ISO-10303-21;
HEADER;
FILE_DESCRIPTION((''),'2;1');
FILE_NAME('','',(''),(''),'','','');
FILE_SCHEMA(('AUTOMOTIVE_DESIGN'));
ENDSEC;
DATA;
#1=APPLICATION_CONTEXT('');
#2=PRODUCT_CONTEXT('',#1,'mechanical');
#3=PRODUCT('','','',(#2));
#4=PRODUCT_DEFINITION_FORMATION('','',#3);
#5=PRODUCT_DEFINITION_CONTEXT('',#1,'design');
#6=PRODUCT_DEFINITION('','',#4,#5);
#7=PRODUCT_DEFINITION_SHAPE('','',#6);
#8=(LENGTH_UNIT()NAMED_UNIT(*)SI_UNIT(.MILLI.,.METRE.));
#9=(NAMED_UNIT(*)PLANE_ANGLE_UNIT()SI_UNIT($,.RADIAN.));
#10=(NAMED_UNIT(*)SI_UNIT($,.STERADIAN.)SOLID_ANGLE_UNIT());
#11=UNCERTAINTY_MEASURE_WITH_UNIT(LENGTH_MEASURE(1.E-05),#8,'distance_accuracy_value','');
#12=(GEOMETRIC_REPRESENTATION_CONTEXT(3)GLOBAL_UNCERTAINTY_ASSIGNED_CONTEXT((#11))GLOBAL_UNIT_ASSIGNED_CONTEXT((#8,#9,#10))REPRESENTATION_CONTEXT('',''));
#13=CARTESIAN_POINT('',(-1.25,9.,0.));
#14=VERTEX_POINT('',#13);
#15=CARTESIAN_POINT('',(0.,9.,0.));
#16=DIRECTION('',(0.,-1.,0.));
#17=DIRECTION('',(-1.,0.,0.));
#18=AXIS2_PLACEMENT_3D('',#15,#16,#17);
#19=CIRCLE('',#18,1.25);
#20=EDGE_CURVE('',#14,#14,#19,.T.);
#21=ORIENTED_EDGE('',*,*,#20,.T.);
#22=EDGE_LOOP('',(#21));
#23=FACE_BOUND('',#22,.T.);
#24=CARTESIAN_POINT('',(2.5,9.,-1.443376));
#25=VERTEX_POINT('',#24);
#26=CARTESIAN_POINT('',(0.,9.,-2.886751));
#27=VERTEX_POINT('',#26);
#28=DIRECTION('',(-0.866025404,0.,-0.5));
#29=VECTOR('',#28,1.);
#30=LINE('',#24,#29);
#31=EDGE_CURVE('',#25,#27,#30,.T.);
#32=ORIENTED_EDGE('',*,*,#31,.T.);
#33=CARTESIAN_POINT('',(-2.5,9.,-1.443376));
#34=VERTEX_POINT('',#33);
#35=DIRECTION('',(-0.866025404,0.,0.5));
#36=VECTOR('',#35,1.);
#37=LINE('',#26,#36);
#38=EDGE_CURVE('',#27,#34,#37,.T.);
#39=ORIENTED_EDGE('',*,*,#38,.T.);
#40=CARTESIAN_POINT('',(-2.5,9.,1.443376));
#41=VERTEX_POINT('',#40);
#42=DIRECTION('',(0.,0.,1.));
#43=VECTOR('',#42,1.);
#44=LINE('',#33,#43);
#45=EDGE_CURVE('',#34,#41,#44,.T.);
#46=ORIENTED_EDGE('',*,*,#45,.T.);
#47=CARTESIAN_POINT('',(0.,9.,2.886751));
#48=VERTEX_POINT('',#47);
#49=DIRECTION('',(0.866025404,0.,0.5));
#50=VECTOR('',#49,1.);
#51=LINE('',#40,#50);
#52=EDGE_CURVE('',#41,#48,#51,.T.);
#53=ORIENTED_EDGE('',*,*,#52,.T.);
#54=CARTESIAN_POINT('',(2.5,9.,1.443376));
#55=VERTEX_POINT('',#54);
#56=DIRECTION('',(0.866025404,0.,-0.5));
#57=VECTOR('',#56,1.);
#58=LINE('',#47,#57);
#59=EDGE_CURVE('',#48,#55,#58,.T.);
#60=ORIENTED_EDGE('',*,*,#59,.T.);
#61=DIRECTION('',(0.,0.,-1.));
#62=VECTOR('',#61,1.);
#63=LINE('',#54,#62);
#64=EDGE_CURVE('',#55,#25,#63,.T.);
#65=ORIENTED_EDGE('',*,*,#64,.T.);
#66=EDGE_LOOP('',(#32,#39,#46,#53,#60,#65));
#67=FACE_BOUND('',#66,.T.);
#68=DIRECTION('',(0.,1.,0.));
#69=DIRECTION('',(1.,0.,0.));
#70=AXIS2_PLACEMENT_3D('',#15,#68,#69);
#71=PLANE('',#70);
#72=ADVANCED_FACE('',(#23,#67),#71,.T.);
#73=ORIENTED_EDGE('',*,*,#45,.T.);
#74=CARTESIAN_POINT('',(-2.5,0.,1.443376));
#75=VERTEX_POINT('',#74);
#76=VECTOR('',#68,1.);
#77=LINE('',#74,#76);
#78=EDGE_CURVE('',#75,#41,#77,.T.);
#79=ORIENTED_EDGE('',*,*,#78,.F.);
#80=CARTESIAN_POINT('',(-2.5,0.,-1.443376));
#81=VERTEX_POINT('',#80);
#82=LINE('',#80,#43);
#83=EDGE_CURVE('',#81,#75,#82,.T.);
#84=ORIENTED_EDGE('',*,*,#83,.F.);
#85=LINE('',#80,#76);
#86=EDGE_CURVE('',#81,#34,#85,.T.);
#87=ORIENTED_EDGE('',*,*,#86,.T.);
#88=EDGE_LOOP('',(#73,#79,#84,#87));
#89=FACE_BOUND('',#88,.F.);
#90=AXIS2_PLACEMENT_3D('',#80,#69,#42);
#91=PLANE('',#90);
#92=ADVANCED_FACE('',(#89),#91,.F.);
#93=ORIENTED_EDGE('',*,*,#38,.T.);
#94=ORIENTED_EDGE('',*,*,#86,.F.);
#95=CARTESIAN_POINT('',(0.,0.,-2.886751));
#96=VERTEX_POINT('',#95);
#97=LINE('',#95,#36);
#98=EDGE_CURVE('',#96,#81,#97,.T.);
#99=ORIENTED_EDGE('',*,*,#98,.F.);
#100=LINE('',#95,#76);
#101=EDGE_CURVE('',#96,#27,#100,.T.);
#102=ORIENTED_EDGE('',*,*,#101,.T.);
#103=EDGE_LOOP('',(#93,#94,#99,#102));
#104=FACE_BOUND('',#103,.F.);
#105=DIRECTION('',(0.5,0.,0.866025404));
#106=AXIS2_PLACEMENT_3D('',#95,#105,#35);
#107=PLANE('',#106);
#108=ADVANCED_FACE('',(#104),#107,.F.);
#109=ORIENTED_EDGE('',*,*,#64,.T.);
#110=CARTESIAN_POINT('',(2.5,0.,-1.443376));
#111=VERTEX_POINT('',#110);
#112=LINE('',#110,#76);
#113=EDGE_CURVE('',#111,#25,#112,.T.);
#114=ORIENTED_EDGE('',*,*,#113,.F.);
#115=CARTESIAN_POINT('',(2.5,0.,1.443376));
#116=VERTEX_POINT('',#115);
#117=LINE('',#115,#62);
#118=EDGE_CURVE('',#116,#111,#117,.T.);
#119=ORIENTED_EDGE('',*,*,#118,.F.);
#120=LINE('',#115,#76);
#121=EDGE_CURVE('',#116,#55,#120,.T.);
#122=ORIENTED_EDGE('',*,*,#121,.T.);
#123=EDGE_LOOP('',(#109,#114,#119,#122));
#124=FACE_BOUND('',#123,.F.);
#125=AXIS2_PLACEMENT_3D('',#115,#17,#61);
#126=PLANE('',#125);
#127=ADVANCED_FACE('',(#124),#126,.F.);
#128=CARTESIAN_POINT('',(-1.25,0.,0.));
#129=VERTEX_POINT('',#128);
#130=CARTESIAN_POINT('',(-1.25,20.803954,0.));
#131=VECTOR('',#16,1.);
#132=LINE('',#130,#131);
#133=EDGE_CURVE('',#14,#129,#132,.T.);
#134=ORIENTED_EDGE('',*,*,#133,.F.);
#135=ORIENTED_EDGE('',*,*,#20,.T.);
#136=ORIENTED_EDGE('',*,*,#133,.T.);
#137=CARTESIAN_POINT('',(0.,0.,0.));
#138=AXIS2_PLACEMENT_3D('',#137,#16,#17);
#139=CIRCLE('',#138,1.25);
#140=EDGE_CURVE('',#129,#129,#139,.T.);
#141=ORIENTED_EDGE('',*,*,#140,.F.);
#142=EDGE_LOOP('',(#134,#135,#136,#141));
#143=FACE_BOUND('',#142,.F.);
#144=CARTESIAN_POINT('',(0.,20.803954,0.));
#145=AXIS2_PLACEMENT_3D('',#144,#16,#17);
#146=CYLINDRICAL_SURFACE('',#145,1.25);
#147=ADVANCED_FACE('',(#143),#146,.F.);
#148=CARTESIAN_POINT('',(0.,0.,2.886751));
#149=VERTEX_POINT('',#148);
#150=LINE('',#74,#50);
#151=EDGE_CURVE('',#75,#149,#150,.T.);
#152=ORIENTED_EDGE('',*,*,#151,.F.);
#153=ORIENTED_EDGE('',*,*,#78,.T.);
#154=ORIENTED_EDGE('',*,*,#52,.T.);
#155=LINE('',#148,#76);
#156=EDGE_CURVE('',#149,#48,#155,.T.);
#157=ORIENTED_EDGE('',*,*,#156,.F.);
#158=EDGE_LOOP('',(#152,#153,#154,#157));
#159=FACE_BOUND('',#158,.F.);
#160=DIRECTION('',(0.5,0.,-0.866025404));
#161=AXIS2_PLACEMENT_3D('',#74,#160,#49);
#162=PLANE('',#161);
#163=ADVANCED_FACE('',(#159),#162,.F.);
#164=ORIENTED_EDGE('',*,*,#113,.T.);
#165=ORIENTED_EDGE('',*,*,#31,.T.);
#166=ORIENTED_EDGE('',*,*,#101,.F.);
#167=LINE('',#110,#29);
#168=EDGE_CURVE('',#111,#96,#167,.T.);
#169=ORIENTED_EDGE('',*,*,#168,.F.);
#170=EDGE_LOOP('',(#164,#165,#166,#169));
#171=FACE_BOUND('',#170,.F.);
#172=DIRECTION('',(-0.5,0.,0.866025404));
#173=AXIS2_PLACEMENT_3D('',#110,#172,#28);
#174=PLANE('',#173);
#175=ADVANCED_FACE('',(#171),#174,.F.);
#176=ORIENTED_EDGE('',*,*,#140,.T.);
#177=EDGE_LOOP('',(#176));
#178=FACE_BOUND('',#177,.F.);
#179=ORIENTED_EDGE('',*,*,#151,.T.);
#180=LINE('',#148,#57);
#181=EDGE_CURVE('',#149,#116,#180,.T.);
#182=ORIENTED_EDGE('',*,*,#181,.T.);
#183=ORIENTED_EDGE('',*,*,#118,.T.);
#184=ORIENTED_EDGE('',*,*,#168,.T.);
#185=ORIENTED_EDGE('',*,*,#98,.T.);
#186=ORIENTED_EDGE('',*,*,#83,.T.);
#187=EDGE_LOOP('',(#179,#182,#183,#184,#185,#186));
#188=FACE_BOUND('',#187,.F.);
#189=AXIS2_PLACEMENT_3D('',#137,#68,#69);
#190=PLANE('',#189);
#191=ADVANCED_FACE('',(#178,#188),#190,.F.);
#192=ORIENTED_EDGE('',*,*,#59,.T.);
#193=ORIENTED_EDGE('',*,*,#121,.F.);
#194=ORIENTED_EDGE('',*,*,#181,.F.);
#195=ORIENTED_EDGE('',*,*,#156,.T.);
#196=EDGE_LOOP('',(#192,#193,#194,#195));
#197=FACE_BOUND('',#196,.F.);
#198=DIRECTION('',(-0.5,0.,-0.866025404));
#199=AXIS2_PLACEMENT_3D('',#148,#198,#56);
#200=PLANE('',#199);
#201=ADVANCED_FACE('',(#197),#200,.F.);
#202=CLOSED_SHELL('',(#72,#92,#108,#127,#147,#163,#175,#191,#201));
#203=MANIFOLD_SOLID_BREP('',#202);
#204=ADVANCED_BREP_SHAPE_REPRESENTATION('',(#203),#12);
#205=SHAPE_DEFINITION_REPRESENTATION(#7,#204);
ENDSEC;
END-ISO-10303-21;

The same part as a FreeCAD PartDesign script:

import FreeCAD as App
import Part
import Sketcher
from FreeCAD import Vector
Q = App.Units.Quantity

doc = App.newDocument("Part")
body = doc.addObject("PartDesign::Body", "Body")

# Sketch on XZ plane
sketch1 = body.newObject("Sketcher::SketchObject", "Sketch")
sketch1.AttachmentSupport = (doc.getObject("XZ_Plane"), [""])
sketch1.MapMode = "FlatFace"
sketch1.addGeometry([
    Part.LineSegment(Vector(2.5, 1.443376, 0), Vector(2.5, -1.443376, 0)),  # 0
    Part.LineSegment(Vector(2.5, -1.443376, 0), Vector(0, -2.886751, 0)),  # 1
    Part.LineSegment(Vector(0, -2.886751, 0), Vector(-2.5, -1.443376, 0)),  # 2
    Part.LineSegment(Vector(-2.5, -1.443376, 0), Vector(-2.5, 1.443376, 0)),  # 3
    Part.LineSegment(Vector(-2.5, 1.443376, 0), Vector(0, 2.886751, 0)),  # 4
    Part.LineSegment(Vector(0, 2.886751, 0), Vector(2.5, 1.443376, 0)),  # 5
], False)
sketch1.addConstraint([
    Sketcher.Constraint("Coincident", 0, 2, 1, 1),
    Sketcher.Constraint("Coincident", 1, 2, 2, 1),
    Sketcher.Constraint("Coincident", 2, 2, 3, 1),
    Sketcher.Constraint("Coincident", 3, 2, 4, 1),
    Sketcher.Constraint("Coincident", 4, 2, 5, 1),
    Sketcher.Constraint("Coincident", 5, 2, 0, 1),
    Sketcher.Constraint("Vertical", 0),
    Sketcher.Constraint("Vertical", 3),
    Sketcher.Constraint("Symmetric", 0, 2, 3, 2, -1, 1),
    Sketcher.Constraint("Symmetric", 1, 2, 4, 2, -1, 1),
    Sketcher.Constraint("PointOnObject", 1, 2, -2),
    Sketcher.Constraint("Parallel", 2, 5),
    Sketcher.Constraint("Horizontal", 0, 2, 2, 2),
    Sketcher.Constraint("Angle", 1, Q("-150 deg")),
    Sketcher.Constraint("DistanceX", 2, 2, 0, 2, Q("5 mm")),
    Sketcher.Constraint("DistanceY", 0, 2, 0, 1, Q("2.886751 mm")),
])
pad1 = body.newObject("PartDesign::Pad", "Pad")
pad1.Profile = sketch1
pad1.Length = 9
pad1.Reversed = True

# Sketch on XZ plane
sketch2 = body.newObject("Sketcher::SketchObject", "Sketch001")
sketch2.AttachmentSupport = (doc.getObject("XZ_Plane"), [""])
sketch2.MapMode = "FlatFace"
sketch2.AttachmentOffset = App.Placement(Vector(0, 0, -9), App.Rotation())
sketch2.addGeometry(Part.Circle(Vector(0, 0, 0), Vector(0, 0, 1), 1.25), False)
sketch2.addConstraint([
    Sketcher.Constraint("Coincident", 0, 3, -1, 1),
    Sketcher.Constraint("Diameter", 0, Q("2.5 mm")),
])
doc.recompute()
hole = body.newObject("PartDesign::Hole", "Hole")
hole.Profile = sketch2
hole.ThreadType = "None"
hole.Diameter = 2.5
hole.DepthType = "ThroughAll"
hole.Reversed = True

doc.recompute()
